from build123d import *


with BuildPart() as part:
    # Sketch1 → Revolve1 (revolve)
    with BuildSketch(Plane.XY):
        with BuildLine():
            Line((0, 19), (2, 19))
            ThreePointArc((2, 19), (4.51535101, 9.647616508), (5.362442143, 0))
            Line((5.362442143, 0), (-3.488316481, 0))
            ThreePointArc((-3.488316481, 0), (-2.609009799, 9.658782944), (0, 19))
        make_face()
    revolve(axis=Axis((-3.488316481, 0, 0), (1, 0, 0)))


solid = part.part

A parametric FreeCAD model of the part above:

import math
import FreeCAD as App
import Part
import Sketcher

V = App.Vector
Q = App.Units.Quantity

doc = App.newDocument("Part")
body = doc.addObject("PartDesign::Body", "Body")

# Sketch on XY plane
sketch1 = body.newObject("Sketcher::SketchObject", "Sketch")
sketch1.AttachmentSupport = (doc.getObject("XY_Plane"), [""])
sketch1.MapMode = "FlatFace"
sketch1.addGeometry([
    Part.LineSegment(V(2, 19, 0), V(0, 19, 0)),
    Part.ArcOfCircle(Part.Circle(V(50, 0, 0), V(0, 0, 1), 53.5), math.radians(159), math.radians(180)),
    Part.LineSegment(V(-3.5, 0, 0), V(5.4, 0, 0)),
    Part.ArcOfCircle(Part.Circle(V(-50, 0, 0), V(0, 0, 1), 55.4), math.radians(0), math.radians(20)),
], False)
sketch1.addConstraint([
    Sketcher.Constraint("Coincident", 0, 2, 1, 1),
    Sketcher.Constraint("Coincident", 1, 2, 2, 1),
    Sketcher.Constraint("Coincident", 2, 2, 3, 1),
    Sketcher.Constraint("Coincident", 3, 2, 0, 1),
    Sketcher.Constraint("Horizontal", 0),
    Sketcher.Constraint("Horizontal", 2),
    Sketcher.Constraint("Symmetric", 1, 3, 3, 3, -1, 1),
    Sketcher.Constraint("PointOnObject", 1, 3, -1),
    Sketcher.Constraint("PointOnObject", 0, 2, -2),
    Sketcher.Constraint("PointOnObject", 1, 2, -1),
    Sketcher.Constraint("DistanceX", 0, 2, 0, 1, Q("2 mm")),
    Sketcher.Constraint("DistanceX", -1, 1, 1, 3, Q("50 mm")),
    Sketcher.Constraint("DistanceY", -1, 1, 0, 2, Q("19 mm")),
])
revolution = body.newObject("PartDesign::Revolution", "Revolution")
revolution.Profile = sketch1
revolution.ReferenceAxis = (sketch1, ["H_Axis"])
revolution.Angle = 360

doc.recompute()
